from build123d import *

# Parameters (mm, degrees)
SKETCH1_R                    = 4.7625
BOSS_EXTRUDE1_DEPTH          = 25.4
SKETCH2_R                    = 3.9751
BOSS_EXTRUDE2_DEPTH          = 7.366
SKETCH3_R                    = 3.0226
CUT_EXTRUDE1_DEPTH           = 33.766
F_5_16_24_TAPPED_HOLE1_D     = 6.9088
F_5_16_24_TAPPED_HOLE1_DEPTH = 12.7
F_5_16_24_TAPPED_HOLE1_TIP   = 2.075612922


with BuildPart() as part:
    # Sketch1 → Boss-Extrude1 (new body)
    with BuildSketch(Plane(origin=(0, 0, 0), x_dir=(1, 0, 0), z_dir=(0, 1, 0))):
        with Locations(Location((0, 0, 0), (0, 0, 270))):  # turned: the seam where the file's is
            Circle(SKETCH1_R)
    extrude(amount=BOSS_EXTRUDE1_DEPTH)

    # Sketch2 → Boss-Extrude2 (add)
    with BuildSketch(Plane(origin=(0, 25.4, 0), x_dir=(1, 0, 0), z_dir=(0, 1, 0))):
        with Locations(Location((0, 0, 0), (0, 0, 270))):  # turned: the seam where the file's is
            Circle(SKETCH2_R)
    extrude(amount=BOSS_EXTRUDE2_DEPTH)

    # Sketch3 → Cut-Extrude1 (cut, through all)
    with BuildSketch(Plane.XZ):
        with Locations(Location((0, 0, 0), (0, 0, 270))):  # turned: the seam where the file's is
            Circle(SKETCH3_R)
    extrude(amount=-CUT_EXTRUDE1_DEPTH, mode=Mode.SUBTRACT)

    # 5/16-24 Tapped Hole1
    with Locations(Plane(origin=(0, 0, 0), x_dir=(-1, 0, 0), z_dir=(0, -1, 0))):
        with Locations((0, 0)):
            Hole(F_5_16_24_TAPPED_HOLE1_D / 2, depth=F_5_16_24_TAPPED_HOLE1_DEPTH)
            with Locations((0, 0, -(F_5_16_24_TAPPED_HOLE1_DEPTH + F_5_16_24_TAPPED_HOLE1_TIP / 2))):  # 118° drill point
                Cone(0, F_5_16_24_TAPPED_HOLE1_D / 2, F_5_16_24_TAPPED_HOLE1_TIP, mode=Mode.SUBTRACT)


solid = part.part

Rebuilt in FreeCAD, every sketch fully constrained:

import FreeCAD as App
import Part
import Sketcher
from FreeCAD import Vector
Q = App.Units.Quantity

doc = App.newDocument("Part")
body = doc.addObject("PartDesign::Body", "Body")

sketch1 = body.newObject("Sketcher::SketchObject", "Sketch")
sketch1.AttachmentSupport = (doc.getObject("XZ_Plane"), [""])
sketch1.MapMode = "FlatFace"
sketch1.addGeometry(Part.Circle(Vector(0, 0, 0), Vector(0, 0, 1), 4.8), False)
sketch1.addConstraint([
    Sketcher.Constraint("Coincident", 0, 3, -1, 1),
    Sketcher.Constraint("Diameter", 0, Q("0.375 in")),
])
pad1 = body.newObject("PartDesign::Pad", "Pad")
pad1.Profile = sketch1
pad1.Length = Q("1 in")
pad1.Reversed = True

sketch2 = body.newObject("Sketcher::SketchObject", "Sketch001")
sketch2.AttachmentSupport = (doc.getObject("XZ_Plane"), [""])
sketch2.MapMode = "FlatFace"
sketch2.AttachmentOffset = App.Placement(Vector(0, 0, -1 * 25.4), App.Rotation())
sketch2.addGeometry(Part.Circle(Vector(0, 0, 0), Vector(0, 0, 1), 4), False)
sketch2.addConstraint([
    Sketcher.Constraint("Coincident", 0, 3, -1, 1),
    Sketcher.Constraint("Diameter", 0, Q("0.313 in")),
])
pad2 = body.newObject("PartDesign::Pad", "Pad001")
pad2.Profile = sketch2
pad2.Length = Q("0.29 in")
pad2.Reversed = True

sketch3 = body.newObject("Sketcher::SketchObject", "Sketch002")
sketch3.AttachmentSupport = (doc.getObject("XZ_Plane"), [""])
sketch3.MapMode = "FlatFace"
sketch3.addGeometry(Part.Circle(Vector(0, 0, 0), Vector(0, 0, 1), 3), False)
sketch3.addConstraint([
    Sketcher.Constraint("Coincident", 0, 3, -1, 1),
    Sketcher.Constraint("Diameter", 0, Q("0.238 in")),
])
pocket1 = body.newObject("PartDesign::Pocket", "Pocket")
pocket1.Profile = sketch3
pocket1.Type = "ThroughAll"

sketch4 = body.newObject("Sketcher::SketchObject", "Sketch003")
sketch4.AttachmentSupport = (doc.getObject("XZ_Plane"), [""])
sketch4.MapMode = "FlatFace"
sketch4.addGeometry(Part.Circle(Vector(0, 0, 0), Vector(0, 0, 1), 3.5), False)
sketch4.addConstraint([
    Sketcher.Constraint("Coincident", 0, 3, -1, 1),
    Sketcher.Constraint("Diameter", 0, Q("0.272 in")),
])
doc.recompute()
hole = body.newObject("PartDesign::Hole", "Hole")
hole.Profile = sketch4
hole.ThreadType = "None"
hole.Diameter = Q("0.272 in")
hole.DepthType = "Dimension"
hole.Depth = Q("0.5 in")
hole.DrillPoint = "Angled"
hole.DrillPointAngle = 118

doc.recompute()
